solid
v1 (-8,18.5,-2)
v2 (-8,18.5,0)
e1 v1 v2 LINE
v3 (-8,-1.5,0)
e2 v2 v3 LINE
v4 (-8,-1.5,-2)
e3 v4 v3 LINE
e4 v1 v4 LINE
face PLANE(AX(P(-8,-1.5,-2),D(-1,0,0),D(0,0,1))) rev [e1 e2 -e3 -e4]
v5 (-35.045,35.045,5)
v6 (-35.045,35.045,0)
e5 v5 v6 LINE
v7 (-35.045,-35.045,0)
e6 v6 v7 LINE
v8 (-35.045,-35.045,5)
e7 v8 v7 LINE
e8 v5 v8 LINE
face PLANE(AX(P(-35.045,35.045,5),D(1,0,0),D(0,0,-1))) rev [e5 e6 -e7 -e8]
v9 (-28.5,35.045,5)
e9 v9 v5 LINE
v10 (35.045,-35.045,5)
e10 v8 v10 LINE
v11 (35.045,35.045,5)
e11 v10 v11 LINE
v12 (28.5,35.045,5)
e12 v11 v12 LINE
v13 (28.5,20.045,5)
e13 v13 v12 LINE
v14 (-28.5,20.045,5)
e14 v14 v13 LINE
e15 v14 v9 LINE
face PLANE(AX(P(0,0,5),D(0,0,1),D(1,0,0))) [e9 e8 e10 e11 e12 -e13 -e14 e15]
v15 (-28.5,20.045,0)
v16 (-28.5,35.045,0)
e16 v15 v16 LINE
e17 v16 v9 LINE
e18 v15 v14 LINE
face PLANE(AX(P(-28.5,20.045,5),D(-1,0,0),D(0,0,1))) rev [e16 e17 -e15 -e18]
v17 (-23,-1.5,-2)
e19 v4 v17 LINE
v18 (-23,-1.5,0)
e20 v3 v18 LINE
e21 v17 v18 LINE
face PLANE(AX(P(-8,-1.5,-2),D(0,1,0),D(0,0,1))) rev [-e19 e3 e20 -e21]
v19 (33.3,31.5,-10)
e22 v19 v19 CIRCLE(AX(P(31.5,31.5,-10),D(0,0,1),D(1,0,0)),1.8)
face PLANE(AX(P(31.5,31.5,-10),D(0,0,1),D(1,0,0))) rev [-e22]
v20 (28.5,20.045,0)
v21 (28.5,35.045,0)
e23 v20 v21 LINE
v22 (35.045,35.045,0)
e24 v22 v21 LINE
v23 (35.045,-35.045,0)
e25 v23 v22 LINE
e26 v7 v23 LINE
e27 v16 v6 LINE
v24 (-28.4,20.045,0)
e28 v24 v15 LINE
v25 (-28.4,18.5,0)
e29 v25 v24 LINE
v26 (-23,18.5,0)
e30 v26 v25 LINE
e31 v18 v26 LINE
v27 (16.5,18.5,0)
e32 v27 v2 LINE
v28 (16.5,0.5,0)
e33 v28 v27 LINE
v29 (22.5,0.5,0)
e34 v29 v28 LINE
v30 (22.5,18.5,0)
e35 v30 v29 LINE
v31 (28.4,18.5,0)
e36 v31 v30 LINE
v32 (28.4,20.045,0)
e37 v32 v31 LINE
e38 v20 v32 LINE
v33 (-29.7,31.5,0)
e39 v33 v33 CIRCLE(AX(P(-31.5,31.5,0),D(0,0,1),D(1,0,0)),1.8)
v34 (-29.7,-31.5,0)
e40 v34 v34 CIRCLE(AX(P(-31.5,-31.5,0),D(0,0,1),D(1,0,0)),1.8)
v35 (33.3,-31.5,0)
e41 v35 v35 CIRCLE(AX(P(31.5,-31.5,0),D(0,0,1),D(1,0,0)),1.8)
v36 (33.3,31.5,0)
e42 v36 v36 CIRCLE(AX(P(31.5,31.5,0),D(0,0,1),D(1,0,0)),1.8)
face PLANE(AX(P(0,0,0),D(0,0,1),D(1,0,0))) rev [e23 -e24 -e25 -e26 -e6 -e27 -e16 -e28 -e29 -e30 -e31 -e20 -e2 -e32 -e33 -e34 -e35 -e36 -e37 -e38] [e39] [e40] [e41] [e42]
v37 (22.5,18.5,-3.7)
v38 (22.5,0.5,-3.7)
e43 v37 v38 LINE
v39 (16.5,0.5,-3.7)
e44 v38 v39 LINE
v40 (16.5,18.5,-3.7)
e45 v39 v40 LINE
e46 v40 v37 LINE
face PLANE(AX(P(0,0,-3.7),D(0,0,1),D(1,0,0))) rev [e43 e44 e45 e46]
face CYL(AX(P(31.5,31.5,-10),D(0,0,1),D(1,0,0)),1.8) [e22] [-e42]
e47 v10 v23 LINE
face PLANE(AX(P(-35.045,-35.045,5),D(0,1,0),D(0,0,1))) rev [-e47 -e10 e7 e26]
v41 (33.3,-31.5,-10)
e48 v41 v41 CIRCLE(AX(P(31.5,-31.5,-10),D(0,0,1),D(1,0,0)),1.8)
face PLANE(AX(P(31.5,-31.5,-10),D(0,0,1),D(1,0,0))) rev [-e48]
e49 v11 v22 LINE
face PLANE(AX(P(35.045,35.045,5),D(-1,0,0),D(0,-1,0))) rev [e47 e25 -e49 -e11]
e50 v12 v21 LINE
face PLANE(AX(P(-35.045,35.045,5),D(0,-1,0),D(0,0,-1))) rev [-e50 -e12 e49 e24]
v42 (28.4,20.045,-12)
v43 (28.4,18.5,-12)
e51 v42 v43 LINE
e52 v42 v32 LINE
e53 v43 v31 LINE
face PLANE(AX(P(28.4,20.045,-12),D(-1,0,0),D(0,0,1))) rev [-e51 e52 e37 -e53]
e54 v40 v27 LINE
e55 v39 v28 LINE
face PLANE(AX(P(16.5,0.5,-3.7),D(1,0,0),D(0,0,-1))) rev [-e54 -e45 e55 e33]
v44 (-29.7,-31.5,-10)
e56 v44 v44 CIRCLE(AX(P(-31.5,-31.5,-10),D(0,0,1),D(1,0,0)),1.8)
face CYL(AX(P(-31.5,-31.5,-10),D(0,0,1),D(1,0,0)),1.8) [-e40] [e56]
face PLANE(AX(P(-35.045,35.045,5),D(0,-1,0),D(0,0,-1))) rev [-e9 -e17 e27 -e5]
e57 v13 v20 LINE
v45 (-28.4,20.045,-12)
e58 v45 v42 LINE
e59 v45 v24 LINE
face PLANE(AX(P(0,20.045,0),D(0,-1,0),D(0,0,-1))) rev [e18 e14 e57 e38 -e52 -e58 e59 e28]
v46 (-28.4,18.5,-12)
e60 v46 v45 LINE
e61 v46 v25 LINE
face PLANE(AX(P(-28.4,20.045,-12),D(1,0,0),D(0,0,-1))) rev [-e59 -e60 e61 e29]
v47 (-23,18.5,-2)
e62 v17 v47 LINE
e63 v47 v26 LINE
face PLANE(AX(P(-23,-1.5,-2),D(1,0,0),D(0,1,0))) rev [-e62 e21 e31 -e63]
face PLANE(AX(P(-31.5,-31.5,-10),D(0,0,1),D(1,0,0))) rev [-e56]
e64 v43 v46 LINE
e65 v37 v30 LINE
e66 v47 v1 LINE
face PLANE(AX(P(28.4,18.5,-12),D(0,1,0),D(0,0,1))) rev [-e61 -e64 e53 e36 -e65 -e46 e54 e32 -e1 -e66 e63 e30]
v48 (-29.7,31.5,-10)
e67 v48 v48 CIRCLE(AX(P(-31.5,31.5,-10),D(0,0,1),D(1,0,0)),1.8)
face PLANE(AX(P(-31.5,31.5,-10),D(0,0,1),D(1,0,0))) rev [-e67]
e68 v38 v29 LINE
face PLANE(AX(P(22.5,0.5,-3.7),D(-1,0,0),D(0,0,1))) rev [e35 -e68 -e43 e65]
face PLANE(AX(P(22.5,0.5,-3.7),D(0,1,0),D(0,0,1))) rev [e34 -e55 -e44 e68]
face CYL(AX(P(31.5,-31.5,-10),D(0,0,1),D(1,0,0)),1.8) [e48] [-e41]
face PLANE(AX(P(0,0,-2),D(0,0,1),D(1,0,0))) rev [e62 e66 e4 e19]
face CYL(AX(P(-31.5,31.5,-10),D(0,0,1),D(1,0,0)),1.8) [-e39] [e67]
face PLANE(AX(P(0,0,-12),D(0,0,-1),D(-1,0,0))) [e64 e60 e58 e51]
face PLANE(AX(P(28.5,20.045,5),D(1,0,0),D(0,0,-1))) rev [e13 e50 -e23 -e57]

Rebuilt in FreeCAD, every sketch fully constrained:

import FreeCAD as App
import Part
import Sketcher
from FreeCAD import Vector


def add_polygon(sketch, points):
    """Adds a closed chain of lines whose ends are joined by coincident constraints."""
    first, n = sketch.GeometryCount, len(points)
    for a, b in zip(points, points[1:] + points[:1]):
        sketch.addGeometry(Part.LineSegment(App.Vector(*a, 0), App.Vector(*b, 0)), False)
    for i in range(n):
        sketch.addConstraint(Sketcher.Constraint("Coincident", first + i, 2, first + (i + 1) % n, 1))

doc = App.newDocument("Part")
params = doc.addObject("Spreadsheet::Sheet", "Params")
for row, (alias, value) in enumerate([
    ("sketch1_width", "70.09 mm"),
    ("pad1_length", "5 mm"),
    ("sketch2_diameter", "3.6 mm"),
    ("pad2_length", "10 mm"),
    ("sketch3_width", "57 mm"),
    ("sketch3_height", "5 mm"),
    ("pocket1_length", "15 mm"),
    ("sketch4_width", "56.8 mm"),
    ("pad3_length", "12 mm"),
    ("sketch5_width", "6 mm"),
    ("sketch5_height", "18 mm"),
    ("pad4_length", "3.7 mm"),
    ("sketch6_width", "15 mm"),
    ("sketch6_height", "20 mm"),
    ("pad5_length", "2 mm"),
], start=1):
    params.set(f"A{row}", alias)
    params.set(f"B{row}", "=" + value)
    params.setAlias(f"B{row}", alias)

body = doc.addObject("PartDesign::Body", "Body")

sketch1 = body.newObject("Sketcher::SketchObject", "Sketch")
sketch1.AttachmentSupport = (doc.getObject("XY_Plane"), [""])
sketch1.MapMode = "FlatFace"
add_polygon(sketch1, [(-35, 35), (-35, -35), (35, -35), (35, 35)])
sketch1.addConstraint(Sketcher.Constraint("Vertical", 0))
sketch1.addConstraint(Sketcher.Constraint("Horizontal", 1))
sketch1.addConstraint(Sketcher.Constraint("Vertical", 2))
sketch1.addConstraint(Sketcher.Constraint("Horizontal", 3))
sketch1.addConstraint(Sketcher.Constraint("Symmetric", 0, 2, 2, 2, -1, 1))
sketch1.addConstraint(Sketcher.Constraint("Equal", 3, 0))
sketch1.addConstraint(Sketcher.Constraint("DistanceX", 1, 1, 1, 2, 70.09))
sketch1.setExpression("Constraints[10]", "Params.sketch1_width")
pad1 = body.newObject("PartDesign::Pad", "Pad")
pad1.Profile = sketch1
pad1.setExpression("Length", "Params.pad1_length")

sketch2 = body.newObject("Sketcher::SketchObject", "Sketch001")
sketch2.AttachmentSupport = (doc.getObject("XY_Plane"), [""])
sketch2.MapMode = "FlatFace"
sketch2.addGeometry(Part.Circle(Vector(31.5, 31.5, 0), Vector(0, 0, 1), 1.8), False)
sketch2.addGeometry(Part.Circle(Vector(31.5, -31.5, 0), Vector(0, 0, 1), 1.8), False)
sketch2.addGeometry(Part.Circle(Vector(-31.5, -31.5, 0), Vector(0, 0, 1), 1.8), False)
sketch2.addGeometry(Part.Circle(Vector(-31.5, 31.5, 0), Vector(0, 0, 1), 1.8), False)
sketch2.addConstraint(Sketcher.Constraint("Equal", 0, 1))
sketch2.addConstraint(Sketcher.Constraint("Equal", 1, 2))
sketch2.addConstraint(Sketcher.Constraint("Equal", 2, 3))
sketch2.addConstraint(Sketcher.Constraint("Symmetric", 0, 3, 2, 3, -1, 1))
sketch2.addConstraint(Sketcher.Constraint("Symmetric", 1, 3, 3, 3, -1, 1))
sketch2.addConstraint(Sketcher.Constraint("Symmetric", 1, 3, 2, 3, -2))
sketch2.addConstraint(Sketcher.Constraint("Diameter", 0, 3.6))
sketch2.addConstraint(Sketcher.Constraint("DistanceY", 1, 3, 0, 3, 63.0))
sketch2.addConstraint(Sketcher.Constraint("DistanceX", 2, 3, 1, 3, 63.0))
sketch2.setExpression("Constraints[6]", "Params.sketch2_diameter")
pad2 = body.newObject("PartDesign::Pad", "Pad001")
pad2.Profile = sketch2
pad2.setExpression("Length", "Params.pad2_length")
pad2.Reversed = True

sketch3 = body.newObject("Sketcher::SketchObject", "Sketch002")
sketch3.AttachmentSupport = (doc.getObject("XZ_Plane"), [""])
sketch3.MapMode = "FlatFace"
sketch3.AttachmentOffset = App.Placement(Vector(0, 0, -35.045), App.Rotation())
add_polygon(sketch3, [(-28, 0), (-28, 5), (28, 5), (28, 0)])
sketch3.addConstraint(Sketcher.Constraint("Vertical", 0))
sketch3.addConstraint(Sketcher.Constraint("Horizontal", 1))
sketch3.addConstraint(Sketcher.Constraint("Vertical", 2))
sketch3.addConstraint(Sketcher.Constraint("Horizontal", 3))
sketch3.addConstraint(Sketcher.Constraint("Symmetric", 2, 2, 3, 2, -1, 1))
sketch3.addConstraint(Sketcher.Constraint("DistanceX", 1, 1, 1, 2, 57.0))
sketch3.addConstraint(Sketcher.Constraint("DistanceY", 0, 1, 0, 2, 5.0))
sketch3.setExpression("Constraints[9]", "Params.sketch3_width")
sketch3.setExpression("Constraints[10]", "Params.sketch3_height")
pocket1 = body.newObject("PartDesign::Pocket", "Pocket")
pocket1.Profile = sketch3
pocket1.setExpression("Length", "Params.pocket1_length")
pocket1.Reversed = True

sketch4 = body.newObject("Sketcher::SketchObject", "Sketch003")
sketch4.AttachmentSupport = (doc.getObject("XY_Plane"), [""])
sketch4.MapMode = "FlatFace"
add_polygon(sketch4, [(28.4, 20), (28.4, 18.5), (-28.4, 18.5), (-28.4, 20)])
sketch4.addConstraint(Sketcher.Constraint("Vertical", 0))
sketch4.addConstraint(Sketcher.Constraint("Horizontal", 1))
sketch4.addConstraint(Sketcher.Constraint("Vertical", 2))
sketch4.addConstraint(Sketcher.Constraint("Horizontal", 3))
sketch4.addConstraint(Sketcher.Constraint("DistanceX", 1, 2, 1, 1, 56.8))
sketch4.addConstraint(Sketcher.Constraint("DistanceX", -1, 1, 0, 2, 28.4))
sketch4.addConstraint(Sketcher.Constraint("DistanceY", -1, 1, 0, 2, 18.5))
sketch4.addConstraint(Sketcher.Constraint("DistanceY", 0, 2, 0, 1, 1.545))
sketch4.setExpression("Constraints[8]", "Params.sketch4_width")
pad3 = body.newObject("PartDesign::Pad", "Pad002")
pad3.Profile = sketch4
pad3.setExpression("Length", "Params.pad3_length")
pad3.Reversed = True

sketch5 = body.newObject("Sketcher::SketchObject", "Sketch004")
sketch5.AttachmentSupport = (doc.getObject("XY_Plane"), [""])
sketch5.MapMode = "FlatFace"
add_polygon(sketch5, [(22, 18), (22, 0), (16, 0), (16, 18)])
sketch5.addConstraint(Sketcher.Constraint("Vertical", 0))
sketch5.addConstraint(Sketcher.Constraint("Horizontal", 1))
sketch5.addConstraint(Sketcher.Constraint("Vertical", 2))
sketch5.addConstraint(Sketcher.Constraint("Horizontal", 3))
sketch5.addConstraint(Sketcher.Constraint("DistanceX", 1, 2, 1, 1, 6.0))
sketch5.addConstraint(Sketcher.Constraint("DistanceY", 0, 2, 0, 1, 18.0))
sketch5.addConstraint(Sketcher.Constraint("DistanceX", -1, 1, 0, 2, 22.5))
sketch5.addConstraint(Sketcher.Constraint("DistanceY", -1, 1, 0, 2, 0.5))
sketch5.setExpression("Constraints[8]", "Params.sketch5_width")
sketch5.setExpression("Constraints[9]", "Params.sketch5_height")
pad4 = body.newObject("PartDesign::Pad", "Pad003")
pad4.Profile = sketch5
pad4.setExpression("Length", "Params.pad4_length")
pad4.Reversed = True

sketch6 = body.newObject("Sketcher::SketchObject", "Sketch005")
sketch6.AttachmentSupport = (doc.getObject("XY_Plane"), [""])
sketch6.MapMode = "FlatFace"
add_polygon(sketch6, [(-8, 18), (-8, -2), (-23, -2), (-23, 18)])
sketch6.addConstraint(Sketcher.Constraint("Vertical", 0))
sketch6.addConstraint(Sketcher.Constraint("Horizontal", 1))
sketch6.addConstraint(Sketcher.Constraint("Vertical", 2))
sketch6.addConstraint(Sketcher.Constraint("Horizontal", 3))
sketch6.addConstraint(Sketcher.Constraint("DistanceX", 1, 2, 1, 1, 15.0))
sketch6.addConstraint(Sketcher.Constraint("DistanceY", 0, 2, 0, 1, 20.0))
sketch6.addConstraint(Sketcher.Constraint("DistanceX", 0, 2, -1, 1, 8.0))
sketch6.addConstraint(Sketcher.Constraint("DistanceY", 0, 2, -1, 1, 1.5))
sketch6.setExpression("Constraints[8]", "Params.sketch6_width")
sketch6.setExpression("Constraints[9]", "Params.sketch6_height")
pad5 = body.newObject("PartDesign::Pad", "Pad004")
pad5.Profile = sketch6
pad5.setExpression("Length", "Params.pad5_length")
pad5.Reversed = True

doc.recompute()
